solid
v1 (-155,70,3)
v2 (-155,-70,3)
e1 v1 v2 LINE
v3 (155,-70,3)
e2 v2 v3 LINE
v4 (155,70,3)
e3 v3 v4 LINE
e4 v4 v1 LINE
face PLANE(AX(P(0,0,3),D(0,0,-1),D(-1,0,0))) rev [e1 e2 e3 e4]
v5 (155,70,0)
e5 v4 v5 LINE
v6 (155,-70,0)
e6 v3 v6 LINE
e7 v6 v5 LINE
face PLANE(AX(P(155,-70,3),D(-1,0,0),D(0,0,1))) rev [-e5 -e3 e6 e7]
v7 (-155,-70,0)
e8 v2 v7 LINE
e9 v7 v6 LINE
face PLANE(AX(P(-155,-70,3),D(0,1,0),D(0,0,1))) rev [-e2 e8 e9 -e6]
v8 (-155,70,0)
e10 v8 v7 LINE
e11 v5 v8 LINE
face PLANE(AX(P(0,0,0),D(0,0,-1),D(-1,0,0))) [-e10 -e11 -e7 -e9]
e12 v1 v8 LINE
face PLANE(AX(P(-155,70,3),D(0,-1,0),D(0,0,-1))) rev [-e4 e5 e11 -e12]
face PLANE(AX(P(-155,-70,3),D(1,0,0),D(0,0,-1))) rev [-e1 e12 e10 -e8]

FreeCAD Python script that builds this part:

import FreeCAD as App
import Part
import Sketcher

doc = App.newDocument("Part")
body = doc.addObject("PartDesign::Body", "Body")

# Sketch on XY plane
sketch1 = body.newObject("Sketcher::SketchObject", "Sketch")
sketch1.AttachmentSupport = (doc.getObject("XY_Plane"), [""])
sketch1.MapMode = "FlatFace"
sketch1.addGeometry(Part.LineSegment(App.Vector(-155, 70, 0), App.Vector(-155, -70, 0)), False)
sketch1.addGeometry(Part.LineSegment(App.Vector(-155, -70, 0), App.Vector(155, -70, 0)), False)
sketch1.addGeometry(Part.LineSegment(App.Vector(155, -70, 0), App.Vector(155, 70, 0)), False)
sketch1.addGeometry(Part.LineSegment(App.Vector(155, 70, 0), App.Vector(-155, 70, 0)), False)
sketch1.addConstraint(Sketcher.Constraint("Coincident", 0, 2, 1, 1))
sketch1.addConstraint(Sketcher.Constraint("Coincident", 1, 2, 2, 1))
sketch1.addConstraint(Sketcher.Constraint("Coincident", 2, 2, 3, 1))
sketch1.addConstraint(Sketcher.Constraint("Coincident", 3, 2, 0, 1))
sketch1.addConstraint(Sketcher.Constraint("Vertical", 0))
sketch1.addConstraint(Sketcher.Constraint("Horizontal", 1))
sketch1.addConstraint(Sketcher.Constraint("Vertical", 2))
sketch1.addConstraint(Sketcher.Constraint("Horizontal", 3))
sketch1.addConstraint(Sketcher.Constraint("Symmetric", 0, 2, 2, 2, -1, 1))
sketch1.addConstraint(Sketcher.Constraint("DistanceX", 1, 1, 1, 2, 310.0))
sketch1.addConstraint(Sketcher.Constraint("DistanceY", 0, 2, 0, 1, 140.0))
pad1 = body.newObject("PartDesign::Pad", "Pad")
pad1.Profile = sketch1
pad1.Length = 3

doc.recompute()
